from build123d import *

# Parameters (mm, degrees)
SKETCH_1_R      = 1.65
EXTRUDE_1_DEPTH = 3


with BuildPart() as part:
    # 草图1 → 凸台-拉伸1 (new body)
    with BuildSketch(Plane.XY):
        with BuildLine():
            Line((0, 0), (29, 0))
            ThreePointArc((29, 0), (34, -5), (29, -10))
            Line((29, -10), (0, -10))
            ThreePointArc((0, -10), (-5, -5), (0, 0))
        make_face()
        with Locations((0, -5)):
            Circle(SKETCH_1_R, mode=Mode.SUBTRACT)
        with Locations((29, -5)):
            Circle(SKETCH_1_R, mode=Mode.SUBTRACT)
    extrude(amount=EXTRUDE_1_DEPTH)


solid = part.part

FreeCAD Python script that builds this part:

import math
import FreeCAD as App
import Part
import Sketcher
from FreeCAD import Vector

doc = App.newDocument("Part")
body = doc.addObject("PartDesign::Body", "Body")

sketch1 = body.newObject("Sketcher::SketchObject", "Sketch")
sketch1.AttachmentSupport = (doc.getObject("XY_Plane"), [""])
sketch1.MapMode = "FlatFace"
sketch1.addGeometry([
    Part.LineSegment(Vector(29, 0, 0), Vector(0, 0, 0)),
    Part.ArcOfCircle(Part.Circle(Vector(0, -5, 0), Vector(0, 0, 1), 5), math.radians(90), math.radians(270)),
    Part.LineSegment(Vector(0, -10, 0), Vector(29, -10, 0)),
    Part.ArcOfCircle(Part.Circle(Vector(29, -5, 0), Vector(0, 0, 1), 5), math.radians(-90), math.radians(90)),
    Part.Circle(Vector(29, -5, 0), Vector(0, 0, 1), 1.6),
    Part.Circle(Vector(0, -5, 0), Vector(0, 0, 1), 1.6),
], False)
sketch1.addConstraint([
    Sketcher.Constraint("Tangent", 0, 2, 1, 1),
    Sketcher.Constraint("Tangent", 1, 2, 2, 1),
    Sketcher.Constraint("Tangent", 2, 2, 3, 1),
    Sketcher.Constraint("Tangent", 3, 2, 0, 1),
    Sketcher.Constraint("Horizontal", 0),
    Sketcher.Constraint("Horizontal", 2),
    Sketcher.Constraint("Coincident", 0, 2, -1, 1),
    Sketcher.Constraint("Coincident", 4, 3, 3, 3),
    Sketcher.Constraint("Coincident", 5, 3, 1, 3),
    Sketcher.Constraint("Equal", 4, 5),
    Sketcher.Constraint("Radius", 1, 5.0),
    Sketcher.Constraint("Diameter", 4, 3.3),
    Sketcher.Constraint("DistanceX", 0, 2, 0, 1, 29.0),
])
pad1 = body.newObject("PartDesign::Pad", "Pad")
pad1.Profile = sketch1
pad1.Length = 3

doc.recompute()
